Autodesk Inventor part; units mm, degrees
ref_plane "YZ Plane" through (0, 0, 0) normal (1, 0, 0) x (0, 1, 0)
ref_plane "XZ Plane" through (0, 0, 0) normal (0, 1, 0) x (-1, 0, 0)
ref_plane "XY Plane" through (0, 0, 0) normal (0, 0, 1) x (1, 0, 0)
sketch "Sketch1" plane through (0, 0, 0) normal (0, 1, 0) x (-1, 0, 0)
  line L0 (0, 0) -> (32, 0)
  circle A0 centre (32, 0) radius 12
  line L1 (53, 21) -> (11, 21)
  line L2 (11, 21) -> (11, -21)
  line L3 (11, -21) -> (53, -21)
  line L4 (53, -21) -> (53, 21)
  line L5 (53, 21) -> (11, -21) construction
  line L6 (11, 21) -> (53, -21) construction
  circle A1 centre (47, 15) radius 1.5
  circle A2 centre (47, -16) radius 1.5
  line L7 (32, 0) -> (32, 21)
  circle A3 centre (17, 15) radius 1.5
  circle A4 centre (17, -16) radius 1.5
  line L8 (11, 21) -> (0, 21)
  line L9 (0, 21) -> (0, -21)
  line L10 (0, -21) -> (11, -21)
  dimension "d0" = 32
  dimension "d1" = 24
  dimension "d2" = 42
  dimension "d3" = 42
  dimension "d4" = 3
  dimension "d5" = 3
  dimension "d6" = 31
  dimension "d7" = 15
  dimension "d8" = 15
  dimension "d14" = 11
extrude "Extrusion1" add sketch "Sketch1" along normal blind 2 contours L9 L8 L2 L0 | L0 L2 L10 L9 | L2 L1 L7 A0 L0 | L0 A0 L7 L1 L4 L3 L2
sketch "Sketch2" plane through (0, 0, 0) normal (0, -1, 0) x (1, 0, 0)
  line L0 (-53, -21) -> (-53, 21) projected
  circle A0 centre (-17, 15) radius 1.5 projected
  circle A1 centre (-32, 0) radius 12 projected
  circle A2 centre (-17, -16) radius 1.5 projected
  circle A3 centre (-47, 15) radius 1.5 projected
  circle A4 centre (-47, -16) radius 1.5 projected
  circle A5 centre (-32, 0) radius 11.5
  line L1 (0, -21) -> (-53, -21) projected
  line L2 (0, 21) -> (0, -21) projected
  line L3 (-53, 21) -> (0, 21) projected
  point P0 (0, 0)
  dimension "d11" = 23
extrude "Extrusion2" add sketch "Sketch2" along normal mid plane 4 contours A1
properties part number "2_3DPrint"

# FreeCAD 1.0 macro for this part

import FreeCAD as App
import Part
import Sketcher
from FreeCAD import Vector
Q = App.Units.Quantity


def add_polygon(sketch, points):
    """Adds a closed chain of lines whose ends are joined by coincident constraints."""
    first, n = sketch.GeometryCount, len(points)
    for a, b in zip(points, points[1:] + points[:1]):
        sketch.addGeometry(Part.LineSegment(App.Vector(*a, 0), App.Vector(*b, 0)), False)
    for i in range(n):
        sketch.addConstraint(Sketcher.Constraint("Coincident", first + i, 2, first + (i + 1) % n, 1))

doc = App.newDocument("Part")
body = doc.addObject("PartDesign::Body", "Body")

# Sketch on XZ plane
sketch1 = body.newObject("Sketcher::SketchObject", "Sketch")
sketch1.AttachmentSupport = (doc.getObject("XZ_Plane"), [""])
sketch1.MapMode = "FlatFace"
add_polygon(sketch1, [(0, 21), (0, -21), (-53, -21), (-53, 21)])  # lines 0-3
sketch1.addGeometry(Part.Circle(Vector(-17, 15, 0), Vector(0, 0, 1), 1.5), False)  # 4
sketch1.addGeometry(Part.Circle(Vector(-32, 0, 0), Vector(0, 0, 1), 12), False)  # 5
sketch1.addGeometry(Part.Circle(Vector(-47, -16, 0), Vector(0, 0, 1), 1.5), False)  # 6
sketch1.addGeometry(Part.Circle(Vector(-47, 15, 0), Vector(0, 0, 1), 1.5), False)  # 7
sketch1.addGeometry(Part.Circle(Vector(-17, -16, 0), Vector(0, 0, 1), 1.5), False)  # 8
sketch1.addConstraint(Sketcher.Constraint("Vertical", 0))
sketch1.addConstraint(Sketcher.Constraint("Horizontal", 1))
sketch1.addConstraint(Sketcher.Constraint("Vertical", 2))
sketch1.addConstraint(Sketcher.Constraint("Horizontal", 3))
sketch1.addConstraint(Sketcher.Constraint("Equal", 4, 6))
sketch1.addConstraint(Sketcher.Constraint("Equal", 6, 7))
sketch1.addConstraint(Sketcher.Constraint("Equal", 7, 8))
sketch1.addConstraint(Sketcher.Constraint("Symmetric", 0, 2, 3, 2, -1, 1))
sketch1.addConstraint(Sketcher.Constraint("PointOnObject", 5, 3, -1))
sketch1.addConstraint(Sketcher.Constraint("Horizontal", 4, 3, 7, 3))
sketch1.addConstraint(Sketcher.Constraint("Horizontal", 6, 3, 8, 3))
sketch1.addConstraint(Sketcher.Constraint("Vertical", 6, 3, 7, 3))
sketch1.addConstraint(Sketcher.Constraint("Vertical", 4, 3, 8, 3))
sketch1.addConstraint(Sketcher.Constraint("Diameter", 4, Q("3 mm")))
sketch1.addConstraint(Sketcher.Constraint("Diameter", 5, Q("24 mm")))
sketch1.addConstraint(Sketcher.Constraint("DistanceY", 0, 2, 0, 1, Q("42 mm")))
sketch1.addConstraint(Sketcher.Constraint("DistanceY", -1, 1, 4, 3, Q("15 mm")))
sketch1.addConstraint(Sketcher.Constraint("DistanceX", 5, 3, -1, 1, Q("32 mm")))
sketch1.addConstraint(Sketcher.Constraint("DistanceX", 5, 3, 4, 3, Q("15 mm")))
sketch1.addConstraint(Sketcher.Constraint("DistanceX", 6, 3, 5, 3, Q("15 mm")))
sketch1.addConstraint(Sketcher.Constraint("DistanceY", 6, 3, 4, 3, Q("31 mm")))
sketch1.addConstraint(Sketcher.Constraint("DistanceX", 1, 2, 1, 1, Q("53 mm")))
pad1 = body.newObject("PartDesign::Pad", "Pad")
pad1.Profile = sketch1
pad1.Length = 2
pad1.Reversed = True

# Sketch on XZ plane
sketch2 = body.newObject("Sketcher::SketchObject", "Sketch001")
sketch2.AttachmentSupport = (doc.getObject("XZ_Plane"), [""])
sketch2.MapMode = "FlatFace"
sketch2.addGeometry(Part.Circle(Vector(-32, 0, 0), Vector(0, 0, 1), 12), False)
sketch2.addGeometry(Part.Circle(Vector(-32, 0, 0), Vector(0, 0, 1), 12), False)
sketch2.addConstraint(Sketcher.Constraint("Coincident", 1, 3, 0, 3))
sketch2.addConstraint(Sketcher.Constraint("PointOnObject", 0, 3, -1))
sketch2.addConstraint(Sketcher.Constraint("Diameter", 1, Q("23 mm")))
sketch2.addConstraint(Sketcher.Constraint("Diameter", 0, Q("24 mm")))
sketch2.addConstraint(Sketcher.Constraint("DistanceX", 0, 3, -1, 1, Q("32 mm")))
pad2 = body.newObject("PartDesign::Pad", "Pad001")
pad2.Profile = sketch2
pad2.Length = 4
pad2.Midplane = True

doc.recompute()
